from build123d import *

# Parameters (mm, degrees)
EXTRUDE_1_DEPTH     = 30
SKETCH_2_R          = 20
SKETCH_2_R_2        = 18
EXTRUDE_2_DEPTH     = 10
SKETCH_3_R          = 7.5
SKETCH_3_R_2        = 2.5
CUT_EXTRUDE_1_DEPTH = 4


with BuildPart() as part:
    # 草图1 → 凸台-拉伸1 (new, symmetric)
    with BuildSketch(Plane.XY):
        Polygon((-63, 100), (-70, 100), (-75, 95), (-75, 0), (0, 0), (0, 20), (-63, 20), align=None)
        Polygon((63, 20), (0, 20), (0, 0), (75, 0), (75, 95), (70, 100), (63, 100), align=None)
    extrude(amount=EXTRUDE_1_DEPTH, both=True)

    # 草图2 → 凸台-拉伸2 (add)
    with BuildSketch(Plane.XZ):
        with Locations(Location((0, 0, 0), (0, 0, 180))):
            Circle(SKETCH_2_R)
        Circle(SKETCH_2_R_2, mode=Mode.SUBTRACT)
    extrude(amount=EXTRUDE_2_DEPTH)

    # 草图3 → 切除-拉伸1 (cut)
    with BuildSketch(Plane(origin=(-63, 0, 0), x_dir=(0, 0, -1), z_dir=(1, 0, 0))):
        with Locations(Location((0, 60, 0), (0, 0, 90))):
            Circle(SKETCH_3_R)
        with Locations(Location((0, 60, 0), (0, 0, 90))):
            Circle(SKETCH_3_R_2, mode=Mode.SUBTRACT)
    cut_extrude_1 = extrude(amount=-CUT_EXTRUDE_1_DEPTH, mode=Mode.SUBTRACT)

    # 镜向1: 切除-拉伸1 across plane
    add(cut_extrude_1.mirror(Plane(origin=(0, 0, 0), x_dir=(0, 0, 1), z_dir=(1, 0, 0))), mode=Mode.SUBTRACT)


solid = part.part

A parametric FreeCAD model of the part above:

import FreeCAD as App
import Part
import Sketcher
from FreeCAD import Vector


def add_polygon(sketch, points):
    """Adds a closed chain of lines whose ends are joined by coincident constraints."""
    first, n = sketch.GeometryCount, len(points)
    for a, b in zip(points, points[1:] + points[:1]):
        sketch.addGeometry(Part.LineSegment(App.Vector(*a, 0), App.Vector(*b, 0)), False)
    for i in range(n):
        sketch.addConstraint(Sketcher.Constraint("Coincident", first + i, 2, first + (i + 1) % n, 1))

doc = App.newDocument("Part")
body = doc.addObject("PartDesign::Body", "Body")

# Sketch on XY plane
sketch1 = body.newObject("Sketcher::SketchObject", "Sketch")
sketch1.AttachmentSupport = (doc.getObject("XY_Plane"), [""])
sketch1.MapMode = "FlatFace"
add_polygon(sketch1, [(-63, 100), (-70, 100), (-75, 95), (-75, 0), (75, 0), (75, 95), (70, 100), (63, 100), (63, 20), (-63, 20)])  # lines 0-9
sketch1.addConstraint([
    Sketcher.Constraint("Horizontal", 0),
    Sketcher.Constraint("Vertical", 2),
    Sketcher.Constraint("Horizontal", 3),
    Sketcher.Constraint("Vertical", 4),
    Sketcher.Constraint("Horizontal", 6),
    Sketcher.Constraint("Vertical", 7),
    Sketcher.Constraint("Horizontal", 8),
    Sketcher.Constraint("Vertical", 9),
    Sketcher.Constraint("Symmetric", 2, 2, 3, 2, -1, 1),
    Sketcher.Constraint("Symmetric", 0, 2, 5, 2, -2),
    Sketcher.Constraint("Perpendicular", 1, 5),
    Sketcher.Constraint("Horizontal", 1, 2, 4, 2),
    Sketcher.Constraint("Equal", 0, 6),
    Sketcher.Constraint("DistanceX", 0, 2, 0, 1, 7.0),
    Sketcher.Constraint("DistanceX", 3, 1, 3, 2, 150.0),
    Sketcher.Constraint("DistanceX", 8, 2, 8, 1, 126.0),
    Sketcher.Constraint("DistanceY", 2, 2, 2, 1, 95.0),
    Sketcher.Constraint("DistanceY", 7, 2, 7, 1, 80.0),
])
pad1 = body.newObject("PartDesign::Pad", "Pad")
pad1.Profile = sketch1
pad1.Length = 60
pad1.Midplane = True

# Sketch on XZ plane
sketch2 = body.newObject("Sketcher::SketchObject", "Sketch001")
sketch2.AttachmentSupport = (doc.getObject("XZ_Plane"), [""])
sketch2.MapMode = "FlatFace"
sketch2.addGeometry([
    Part.Circle(Vector(0, 0, 0), Vector(0, 0, 1), 20),
    Part.Circle(Vector(0, 0, 0), Vector(0, 0, 1), 18),
], False)
sketch2.addConstraint([
    Sketcher.Constraint("Coincident", 0, 3, -1, 1),
    Sketcher.Constraint("Coincident", 1, 3, -1, 1),
    Sketcher.Constraint("Diameter", 0, 40.0),
    Sketcher.Constraint("Diameter", 1, 36.0),
])
pad2 = body.newObject("PartDesign::Pad", "Pad001")
pad2.Profile = sketch2
pad2.Length = 10

# Sketch on YZ plane
sketch3 = body.newObject("Sketcher::SketchObject", "Sketch002")
sketch3.AttachmentSupport = (doc.getObject("YZ_Plane"), [""])
sketch3.MapMode = "FlatFace"
sketch3.AttachmentOffset = App.Placement(Vector(0, 0, -63), App.Rotation())
sketch3.addGeometry([
    Part.Circle(Vector(60, 0, 0), Vector(0, 0, 1), 7.5),
    Part.Circle(Vector(60, 0, 0), Vector(0, 0, 1), 2.5),
], False)
sketch3.addConstraint([
    Sketcher.Constraint("Coincident", 1, 3, 0, 3),
    Sketcher.Constraint("PointOnObject", 0, 3, -1),
    Sketcher.Constraint("Diameter", 0, 15.0),
    Sketcher.Constraint("Diameter", 1, 5.0),
    Sketcher.Constraint("DistanceX", -1, 1, 0, 3, 60.0),
])
pocket1 = body.newObject("PartDesign::Pocket", "Pocket")
pocket1.Profile = sketch3
pocket1.Length = 4
doc.recompute()

mirrored = body.newObject("PartDesign::Mirrored", "Mirrored")
mirrored.Originals = [pocket1]
mirrored.MirrorPlane = (doc.getObject("YZ_Plane"), [""])
body.Tip = mirrored

doc.recompute()
